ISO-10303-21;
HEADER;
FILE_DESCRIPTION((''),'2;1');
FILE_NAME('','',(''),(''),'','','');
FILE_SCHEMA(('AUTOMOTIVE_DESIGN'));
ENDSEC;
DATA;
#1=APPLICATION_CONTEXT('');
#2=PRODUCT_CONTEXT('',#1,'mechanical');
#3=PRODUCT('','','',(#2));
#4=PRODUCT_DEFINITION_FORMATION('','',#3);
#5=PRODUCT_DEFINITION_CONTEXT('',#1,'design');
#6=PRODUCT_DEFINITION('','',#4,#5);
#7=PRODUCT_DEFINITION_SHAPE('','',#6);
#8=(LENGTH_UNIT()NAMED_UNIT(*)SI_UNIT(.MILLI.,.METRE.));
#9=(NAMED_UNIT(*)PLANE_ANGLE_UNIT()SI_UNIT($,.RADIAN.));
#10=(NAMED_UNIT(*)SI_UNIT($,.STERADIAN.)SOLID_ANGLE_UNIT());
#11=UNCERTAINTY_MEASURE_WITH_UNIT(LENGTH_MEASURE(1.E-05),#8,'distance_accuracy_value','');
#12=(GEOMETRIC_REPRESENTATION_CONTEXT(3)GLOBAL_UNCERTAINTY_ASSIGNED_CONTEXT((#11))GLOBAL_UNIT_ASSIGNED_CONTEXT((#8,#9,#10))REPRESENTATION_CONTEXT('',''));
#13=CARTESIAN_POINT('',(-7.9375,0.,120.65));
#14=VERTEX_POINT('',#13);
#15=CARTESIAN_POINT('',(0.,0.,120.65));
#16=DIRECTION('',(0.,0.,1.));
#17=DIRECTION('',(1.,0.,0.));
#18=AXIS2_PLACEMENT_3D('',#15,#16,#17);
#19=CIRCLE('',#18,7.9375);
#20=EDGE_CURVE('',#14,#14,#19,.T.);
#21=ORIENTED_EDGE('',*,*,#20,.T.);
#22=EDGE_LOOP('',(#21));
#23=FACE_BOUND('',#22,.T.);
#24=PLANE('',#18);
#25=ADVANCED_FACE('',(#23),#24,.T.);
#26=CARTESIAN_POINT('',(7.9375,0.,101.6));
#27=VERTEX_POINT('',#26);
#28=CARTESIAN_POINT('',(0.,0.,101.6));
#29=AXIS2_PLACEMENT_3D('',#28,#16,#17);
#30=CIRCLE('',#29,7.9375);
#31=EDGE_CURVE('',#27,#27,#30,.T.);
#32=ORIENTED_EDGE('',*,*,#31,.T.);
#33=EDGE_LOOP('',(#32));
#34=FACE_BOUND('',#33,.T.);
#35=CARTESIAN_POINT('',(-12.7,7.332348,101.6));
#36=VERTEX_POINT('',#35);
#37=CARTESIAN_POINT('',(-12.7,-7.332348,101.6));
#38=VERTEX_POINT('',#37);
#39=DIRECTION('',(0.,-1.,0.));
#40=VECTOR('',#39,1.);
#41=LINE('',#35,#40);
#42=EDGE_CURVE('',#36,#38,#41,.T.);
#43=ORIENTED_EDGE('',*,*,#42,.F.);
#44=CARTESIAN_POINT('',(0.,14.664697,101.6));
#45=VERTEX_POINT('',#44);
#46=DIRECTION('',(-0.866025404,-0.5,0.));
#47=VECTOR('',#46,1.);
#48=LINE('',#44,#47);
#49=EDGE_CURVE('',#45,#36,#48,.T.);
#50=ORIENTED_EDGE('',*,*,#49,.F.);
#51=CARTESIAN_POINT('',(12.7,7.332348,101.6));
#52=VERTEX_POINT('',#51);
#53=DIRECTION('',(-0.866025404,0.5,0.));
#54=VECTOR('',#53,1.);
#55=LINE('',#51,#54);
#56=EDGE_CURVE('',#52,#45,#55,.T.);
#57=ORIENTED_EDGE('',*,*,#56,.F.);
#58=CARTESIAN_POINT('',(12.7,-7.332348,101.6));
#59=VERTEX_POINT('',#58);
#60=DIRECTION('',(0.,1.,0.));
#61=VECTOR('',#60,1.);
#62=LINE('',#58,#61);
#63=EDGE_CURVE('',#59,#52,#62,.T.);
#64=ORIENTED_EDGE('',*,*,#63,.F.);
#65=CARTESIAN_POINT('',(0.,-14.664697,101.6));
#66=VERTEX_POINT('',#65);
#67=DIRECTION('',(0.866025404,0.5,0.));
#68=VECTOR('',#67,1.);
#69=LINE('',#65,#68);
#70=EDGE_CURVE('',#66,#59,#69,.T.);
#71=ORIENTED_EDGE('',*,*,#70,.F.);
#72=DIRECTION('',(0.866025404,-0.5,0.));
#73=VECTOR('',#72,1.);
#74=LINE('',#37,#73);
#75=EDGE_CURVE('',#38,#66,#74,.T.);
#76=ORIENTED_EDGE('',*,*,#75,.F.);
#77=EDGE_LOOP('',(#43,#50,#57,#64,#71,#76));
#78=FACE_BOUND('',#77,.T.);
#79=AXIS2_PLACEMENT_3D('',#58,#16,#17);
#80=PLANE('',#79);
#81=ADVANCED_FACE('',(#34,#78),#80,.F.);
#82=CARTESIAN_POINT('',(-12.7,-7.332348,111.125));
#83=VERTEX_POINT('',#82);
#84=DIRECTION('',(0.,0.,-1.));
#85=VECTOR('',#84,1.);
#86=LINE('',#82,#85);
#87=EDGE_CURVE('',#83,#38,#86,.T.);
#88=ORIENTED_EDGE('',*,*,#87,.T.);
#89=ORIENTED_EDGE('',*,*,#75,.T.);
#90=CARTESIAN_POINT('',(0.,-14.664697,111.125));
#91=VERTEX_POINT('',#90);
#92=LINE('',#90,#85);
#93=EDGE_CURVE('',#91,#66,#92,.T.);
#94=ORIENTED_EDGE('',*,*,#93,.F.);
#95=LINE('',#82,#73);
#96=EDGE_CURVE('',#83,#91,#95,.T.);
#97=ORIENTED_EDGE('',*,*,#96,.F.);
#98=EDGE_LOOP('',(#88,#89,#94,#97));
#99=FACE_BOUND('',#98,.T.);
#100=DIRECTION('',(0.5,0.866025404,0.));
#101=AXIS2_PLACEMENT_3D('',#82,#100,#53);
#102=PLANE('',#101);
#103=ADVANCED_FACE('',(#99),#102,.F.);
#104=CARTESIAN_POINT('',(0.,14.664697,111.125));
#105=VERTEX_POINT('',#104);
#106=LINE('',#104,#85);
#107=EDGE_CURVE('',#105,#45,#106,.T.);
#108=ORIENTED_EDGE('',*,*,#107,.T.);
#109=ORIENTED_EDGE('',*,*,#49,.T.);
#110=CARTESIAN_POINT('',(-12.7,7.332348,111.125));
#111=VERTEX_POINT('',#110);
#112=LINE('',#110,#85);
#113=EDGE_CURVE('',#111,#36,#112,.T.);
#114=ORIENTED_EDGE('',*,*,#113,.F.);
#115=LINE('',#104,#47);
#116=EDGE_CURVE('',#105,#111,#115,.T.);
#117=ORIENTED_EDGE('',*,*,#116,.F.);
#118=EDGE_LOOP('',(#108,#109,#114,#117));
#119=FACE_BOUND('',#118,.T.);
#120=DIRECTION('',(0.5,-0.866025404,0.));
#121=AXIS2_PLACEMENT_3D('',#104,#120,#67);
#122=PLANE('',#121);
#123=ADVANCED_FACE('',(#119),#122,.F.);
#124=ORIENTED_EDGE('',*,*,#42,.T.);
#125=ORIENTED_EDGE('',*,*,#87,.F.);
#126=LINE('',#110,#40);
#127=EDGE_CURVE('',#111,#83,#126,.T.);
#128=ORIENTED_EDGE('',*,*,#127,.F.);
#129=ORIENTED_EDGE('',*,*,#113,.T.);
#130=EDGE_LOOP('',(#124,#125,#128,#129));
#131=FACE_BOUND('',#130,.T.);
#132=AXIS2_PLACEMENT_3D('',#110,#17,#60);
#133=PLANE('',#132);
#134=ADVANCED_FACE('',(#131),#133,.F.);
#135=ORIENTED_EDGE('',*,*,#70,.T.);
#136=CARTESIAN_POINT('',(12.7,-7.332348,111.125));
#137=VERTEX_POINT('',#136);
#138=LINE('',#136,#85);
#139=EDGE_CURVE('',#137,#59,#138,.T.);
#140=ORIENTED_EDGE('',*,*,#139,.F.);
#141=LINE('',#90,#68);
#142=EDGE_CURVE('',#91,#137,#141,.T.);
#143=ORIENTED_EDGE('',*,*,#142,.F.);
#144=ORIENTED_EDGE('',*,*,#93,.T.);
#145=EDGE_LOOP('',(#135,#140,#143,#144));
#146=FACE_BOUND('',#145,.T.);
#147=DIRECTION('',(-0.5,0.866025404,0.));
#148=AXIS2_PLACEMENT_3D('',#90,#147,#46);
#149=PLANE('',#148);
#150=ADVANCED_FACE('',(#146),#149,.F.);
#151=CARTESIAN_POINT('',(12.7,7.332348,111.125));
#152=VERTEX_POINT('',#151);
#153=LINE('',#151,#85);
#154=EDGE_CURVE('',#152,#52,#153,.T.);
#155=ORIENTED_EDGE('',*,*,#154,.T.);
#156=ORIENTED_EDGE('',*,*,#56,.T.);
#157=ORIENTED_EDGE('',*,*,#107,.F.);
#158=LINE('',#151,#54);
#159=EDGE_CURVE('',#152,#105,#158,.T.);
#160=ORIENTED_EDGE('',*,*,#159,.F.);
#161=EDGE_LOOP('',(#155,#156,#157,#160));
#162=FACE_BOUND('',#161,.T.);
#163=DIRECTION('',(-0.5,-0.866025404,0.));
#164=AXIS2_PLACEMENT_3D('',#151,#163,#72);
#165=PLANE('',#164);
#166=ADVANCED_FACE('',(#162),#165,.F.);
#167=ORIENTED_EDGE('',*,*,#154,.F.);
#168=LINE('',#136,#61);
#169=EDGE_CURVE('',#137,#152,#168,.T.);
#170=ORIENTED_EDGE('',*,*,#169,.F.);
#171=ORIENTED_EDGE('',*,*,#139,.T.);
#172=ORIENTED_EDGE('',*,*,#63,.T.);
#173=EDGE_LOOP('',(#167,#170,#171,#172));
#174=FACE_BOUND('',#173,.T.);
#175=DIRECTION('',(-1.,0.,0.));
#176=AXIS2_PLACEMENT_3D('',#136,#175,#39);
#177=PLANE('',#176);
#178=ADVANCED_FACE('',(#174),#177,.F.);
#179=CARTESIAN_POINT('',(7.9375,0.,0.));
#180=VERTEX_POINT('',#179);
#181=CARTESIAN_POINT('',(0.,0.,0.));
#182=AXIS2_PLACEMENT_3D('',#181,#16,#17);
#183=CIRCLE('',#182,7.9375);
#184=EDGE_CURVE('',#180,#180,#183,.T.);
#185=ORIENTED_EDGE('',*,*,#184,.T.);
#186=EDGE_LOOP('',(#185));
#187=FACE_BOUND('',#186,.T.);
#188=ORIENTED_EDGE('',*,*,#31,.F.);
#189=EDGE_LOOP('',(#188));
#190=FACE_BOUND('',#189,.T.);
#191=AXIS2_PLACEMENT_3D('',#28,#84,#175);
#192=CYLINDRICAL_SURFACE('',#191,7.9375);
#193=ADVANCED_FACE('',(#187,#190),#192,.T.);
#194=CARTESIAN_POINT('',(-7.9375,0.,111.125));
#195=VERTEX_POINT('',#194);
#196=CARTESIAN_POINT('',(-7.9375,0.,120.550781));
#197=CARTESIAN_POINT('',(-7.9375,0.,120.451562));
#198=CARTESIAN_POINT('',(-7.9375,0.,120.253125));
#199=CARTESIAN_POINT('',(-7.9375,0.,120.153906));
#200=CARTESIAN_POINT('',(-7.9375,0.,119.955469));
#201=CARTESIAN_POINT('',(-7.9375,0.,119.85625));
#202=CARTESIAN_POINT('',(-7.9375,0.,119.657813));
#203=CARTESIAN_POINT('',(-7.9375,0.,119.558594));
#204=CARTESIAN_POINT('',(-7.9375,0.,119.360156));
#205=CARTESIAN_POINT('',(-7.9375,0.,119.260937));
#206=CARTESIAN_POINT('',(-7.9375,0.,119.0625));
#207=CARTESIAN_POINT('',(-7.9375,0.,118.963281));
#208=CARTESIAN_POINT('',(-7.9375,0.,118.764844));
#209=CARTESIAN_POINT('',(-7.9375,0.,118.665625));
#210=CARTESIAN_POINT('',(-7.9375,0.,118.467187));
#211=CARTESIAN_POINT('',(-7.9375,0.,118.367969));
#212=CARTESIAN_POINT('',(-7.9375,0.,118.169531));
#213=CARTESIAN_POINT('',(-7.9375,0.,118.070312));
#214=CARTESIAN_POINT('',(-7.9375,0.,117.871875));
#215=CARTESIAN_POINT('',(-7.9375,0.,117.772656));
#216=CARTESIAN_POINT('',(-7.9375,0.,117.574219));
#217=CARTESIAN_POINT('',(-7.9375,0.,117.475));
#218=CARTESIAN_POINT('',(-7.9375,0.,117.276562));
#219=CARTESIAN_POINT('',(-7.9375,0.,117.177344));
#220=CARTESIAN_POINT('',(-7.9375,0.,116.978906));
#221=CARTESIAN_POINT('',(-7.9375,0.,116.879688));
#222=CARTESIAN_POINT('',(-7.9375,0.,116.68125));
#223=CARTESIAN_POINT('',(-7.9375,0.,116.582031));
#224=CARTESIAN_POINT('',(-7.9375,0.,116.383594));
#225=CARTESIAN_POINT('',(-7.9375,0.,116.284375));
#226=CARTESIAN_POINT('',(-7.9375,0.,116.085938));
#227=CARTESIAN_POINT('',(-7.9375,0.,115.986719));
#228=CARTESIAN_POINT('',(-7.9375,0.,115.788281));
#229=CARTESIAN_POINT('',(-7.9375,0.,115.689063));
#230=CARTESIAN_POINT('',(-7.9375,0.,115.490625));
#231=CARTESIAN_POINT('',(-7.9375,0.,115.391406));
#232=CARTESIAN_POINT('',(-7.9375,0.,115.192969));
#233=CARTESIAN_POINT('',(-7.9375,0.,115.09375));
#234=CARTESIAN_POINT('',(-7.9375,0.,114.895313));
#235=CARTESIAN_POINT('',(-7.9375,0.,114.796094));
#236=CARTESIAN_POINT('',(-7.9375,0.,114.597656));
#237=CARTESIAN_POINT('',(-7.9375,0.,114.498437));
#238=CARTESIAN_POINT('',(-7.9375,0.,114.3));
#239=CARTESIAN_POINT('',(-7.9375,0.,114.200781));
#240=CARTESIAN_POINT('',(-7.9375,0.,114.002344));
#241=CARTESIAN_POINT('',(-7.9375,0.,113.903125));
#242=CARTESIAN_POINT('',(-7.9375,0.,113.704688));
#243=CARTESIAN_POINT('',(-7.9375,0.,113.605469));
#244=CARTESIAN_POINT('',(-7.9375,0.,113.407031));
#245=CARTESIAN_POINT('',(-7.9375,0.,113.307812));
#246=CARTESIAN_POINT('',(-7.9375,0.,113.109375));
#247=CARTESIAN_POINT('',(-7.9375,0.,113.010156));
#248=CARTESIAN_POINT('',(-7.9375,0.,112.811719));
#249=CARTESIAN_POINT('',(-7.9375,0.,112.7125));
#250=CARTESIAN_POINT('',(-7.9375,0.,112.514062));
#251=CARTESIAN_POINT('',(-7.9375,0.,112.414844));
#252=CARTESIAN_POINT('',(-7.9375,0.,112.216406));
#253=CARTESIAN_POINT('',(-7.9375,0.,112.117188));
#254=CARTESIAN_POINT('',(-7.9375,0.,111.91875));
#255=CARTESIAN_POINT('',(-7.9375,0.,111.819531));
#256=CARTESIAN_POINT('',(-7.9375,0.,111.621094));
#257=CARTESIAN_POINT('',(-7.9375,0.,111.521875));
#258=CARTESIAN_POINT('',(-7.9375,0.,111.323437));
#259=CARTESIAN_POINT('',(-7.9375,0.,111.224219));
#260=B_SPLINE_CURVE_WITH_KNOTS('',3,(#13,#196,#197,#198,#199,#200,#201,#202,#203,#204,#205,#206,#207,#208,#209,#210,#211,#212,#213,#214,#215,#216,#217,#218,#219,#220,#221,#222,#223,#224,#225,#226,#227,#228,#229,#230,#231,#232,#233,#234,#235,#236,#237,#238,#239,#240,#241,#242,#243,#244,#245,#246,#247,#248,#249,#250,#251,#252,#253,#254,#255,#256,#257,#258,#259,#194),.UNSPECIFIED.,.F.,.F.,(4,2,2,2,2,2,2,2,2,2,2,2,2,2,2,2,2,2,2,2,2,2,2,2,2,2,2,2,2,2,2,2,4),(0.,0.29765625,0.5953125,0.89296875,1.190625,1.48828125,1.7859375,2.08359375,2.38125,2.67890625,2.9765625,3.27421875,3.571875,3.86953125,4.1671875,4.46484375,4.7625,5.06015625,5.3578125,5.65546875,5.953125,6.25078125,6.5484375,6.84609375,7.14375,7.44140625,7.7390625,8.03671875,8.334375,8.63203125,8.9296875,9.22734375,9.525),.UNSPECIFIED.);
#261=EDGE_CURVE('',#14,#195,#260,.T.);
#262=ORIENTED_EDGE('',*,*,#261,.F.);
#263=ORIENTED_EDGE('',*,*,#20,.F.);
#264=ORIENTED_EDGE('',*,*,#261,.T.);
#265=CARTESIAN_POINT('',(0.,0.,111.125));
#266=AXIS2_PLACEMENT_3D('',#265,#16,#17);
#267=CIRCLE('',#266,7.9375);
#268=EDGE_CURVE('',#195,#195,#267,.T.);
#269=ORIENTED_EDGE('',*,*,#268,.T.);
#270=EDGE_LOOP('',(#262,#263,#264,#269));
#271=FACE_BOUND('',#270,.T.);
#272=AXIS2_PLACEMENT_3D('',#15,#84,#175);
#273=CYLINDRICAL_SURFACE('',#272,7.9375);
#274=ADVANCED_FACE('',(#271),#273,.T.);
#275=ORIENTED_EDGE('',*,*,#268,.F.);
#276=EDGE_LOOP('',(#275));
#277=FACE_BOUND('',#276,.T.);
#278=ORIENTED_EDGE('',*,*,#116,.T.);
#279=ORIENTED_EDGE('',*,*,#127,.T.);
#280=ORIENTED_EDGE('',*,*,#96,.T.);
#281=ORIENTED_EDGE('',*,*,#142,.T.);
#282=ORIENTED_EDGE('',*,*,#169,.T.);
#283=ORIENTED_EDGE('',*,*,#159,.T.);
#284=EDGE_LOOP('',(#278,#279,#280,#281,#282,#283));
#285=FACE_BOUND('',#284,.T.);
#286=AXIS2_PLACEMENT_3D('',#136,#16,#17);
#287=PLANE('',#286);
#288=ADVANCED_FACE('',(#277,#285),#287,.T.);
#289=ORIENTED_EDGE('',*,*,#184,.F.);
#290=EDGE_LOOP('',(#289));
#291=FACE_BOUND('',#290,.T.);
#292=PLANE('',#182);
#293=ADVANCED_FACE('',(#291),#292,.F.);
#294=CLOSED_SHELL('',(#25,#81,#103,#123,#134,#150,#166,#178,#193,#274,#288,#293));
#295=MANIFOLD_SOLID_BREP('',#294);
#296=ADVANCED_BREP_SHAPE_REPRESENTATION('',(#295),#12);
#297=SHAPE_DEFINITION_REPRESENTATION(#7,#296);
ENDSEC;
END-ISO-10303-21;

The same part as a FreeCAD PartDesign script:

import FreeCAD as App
import Part
import Sketcher
Q = App.Units.Quantity

doc = App.newDocument("Part")
params = doc.addObject("Spreadsheet::Sheet", "Params")
for row, (alias, value) in enumerate([
    ("sketch1_diameter", "0.625 in"),
    ("pad1_length", "4 in"),
    ("pad2_length", "0.375 in"),
    ("sketch3_diameter", "0.625 in"),
    ("pad3_length", "0.375 in"),
], start=1):
    params.set(f"A{row}", alias)
    params.set(f"B{row}", "=" + value)
    params.setAlias(f"B{row}", alias)

body = doc.addObject("PartDesign::Body", "Body")

# Sketch on XY plane
sketch1 = body.newObject("Sketcher::SketchObject", "Sketch")
sketch1.AttachmentSupport = (doc.getObject("XY_Plane"), [""])
sketch1.MapMode = "FlatFace"
sketch1.addGeometry(Part.Circle(App.Vector(0, 0, 0), App.Vector(0, 0, 1), 8), False)
sketch1.addConstraint(Sketcher.Constraint("Coincident", 0, 3, -1, 1))
sketch1.addConstraint(Sketcher.Constraint("Diameter", 0, Q("0.625 in")))
sketch1.setExpression("Constraints[1]", "Params.sketch1_diameter")
pad1 = body.newObject("PartDesign::Pad", "Pad")
pad1.Profile = sketch1
pad1.setExpression("Length", "Params.pad1_length")

# Sketch on XY plane
sketch2 = body.newObject("Sketcher::SketchObject", "Sketch001")
sketch2.AttachmentSupport = (doc.getObject("XY_Plane"), [""])
sketch2.MapMode = "FlatFace"
sketch2.AttachmentOffset = App.Placement(App.Vector(0, 0, 4 * 25.4), App.Rotation())
sketch2.addGeometry(Part.LineSegment(App.Vector(13, -7, 0), App.Vector(13, 7, 0)), False)
sketch2.addGeometry(Part.LineSegment(App.Vector(13, 7, 0), App.Vector(0, 15, 0)), False)
sketch2.addGeometry(Part.LineSegment(App.Vector(0, 15, 0), App.Vector(-13, 7, 0)), False)
sketch2.addGeometry(Part.LineSegment(App.Vector(-13, 7, 0), App.Vector(-13, -7, 0)), False)
sketch2.addGeometry(Part.LineSegment(App.Vector(-13, -7, 0), App.Vector(0, -15, 0)), False)
sketch2.addGeometry(Part.LineSegment(App.Vector(0, -15, 0), App.Vector(13, -7, 0)), False)
sketch2.addConstraint(Sketcher.Constraint("Coincident", 0, 2, 1, 1))
sketch2.addConstraint(Sketcher.Constraint("Coincident", 1, 2, 2, 1))
sketch2.addConstraint(Sketcher.Constraint("Coincident", 2, 2, 3, 1))
sketch2.addConstraint(Sketcher.Constraint("Coincident", 3, 2, 4, 1))
sketch2.addConstraint(Sketcher.Constraint("Coincident", 4, 2, 5, 1))
sketch2.addConstraint(Sketcher.Constraint("Coincident", 5, 2, 0, 1))
sketch2.addConstraint(Sketcher.Constraint("Vertical", 0))
sketch2.addConstraint(Sketcher.Constraint("Vertical", 3))
sketch2.addConstraint(Sketcher.Constraint("Symmetric", 0, 2, 3, 2, -1, 1))
sketch2.addConstraint(Sketcher.Constraint("Symmetric", 1, 2, 4, 2, -1, 1))
sketch2.addConstraint(Sketcher.Constraint("PointOnObject", 1, 2, -2))
sketch2.addConstraint(Sketcher.Constraint("Parallel", 2, 5))
sketch2.addConstraint(Sketcher.Constraint("Horizontal", 0, 2, 2, 2))
sketch2.addConstraint(Sketcher.Constraint("Angle", 1, Q("150 deg")))
sketch2.addConstraint(Sketcher.Constraint("DistanceX", 2, 2, 0, 2, Q("1 in")))
sketch2.addConstraint(Sketcher.Constraint("DistanceY", 0, 1, 0, 2, 14.664697))
pad2 = body.newObject("PartDesign::Pad", "Pad001")
pad2.Profile = sketch2
pad2.setExpression("Length", "Params.pad2_length")

# Sketch on XY plane
sketch3 = body.newObject("Sketcher::SketchObject", "Sketch002")
sketch3.AttachmentSupport = (doc.getObject("XY_Plane"), [""])
sketch3.MapMode = "FlatFace"
sketch3.AttachmentOffset = App.Placement(App.Vector(0, 0, 4.375 * 25.4), App.Rotation())
sketch3.addGeometry(Part.Circle(App.Vector(0, 0, 0), App.Vector(0, 0, 1), 8), False)
sketch3.addConstraint(Sketcher.Constraint("Coincident", 0, 3, -1, 1))
sketch3.addConstraint(Sketcher.Constraint("Diameter", 0, Q("0.625 in")))
sketch3.setExpression("Constraints[1]", "Params.sketch3_diameter")
pad3 = body.newObject("PartDesign::Pad", "Pad002")
pad3.Profile = sketch3
pad3.setExpression("Length", "Params.pad3_length")

doc.recompute()
